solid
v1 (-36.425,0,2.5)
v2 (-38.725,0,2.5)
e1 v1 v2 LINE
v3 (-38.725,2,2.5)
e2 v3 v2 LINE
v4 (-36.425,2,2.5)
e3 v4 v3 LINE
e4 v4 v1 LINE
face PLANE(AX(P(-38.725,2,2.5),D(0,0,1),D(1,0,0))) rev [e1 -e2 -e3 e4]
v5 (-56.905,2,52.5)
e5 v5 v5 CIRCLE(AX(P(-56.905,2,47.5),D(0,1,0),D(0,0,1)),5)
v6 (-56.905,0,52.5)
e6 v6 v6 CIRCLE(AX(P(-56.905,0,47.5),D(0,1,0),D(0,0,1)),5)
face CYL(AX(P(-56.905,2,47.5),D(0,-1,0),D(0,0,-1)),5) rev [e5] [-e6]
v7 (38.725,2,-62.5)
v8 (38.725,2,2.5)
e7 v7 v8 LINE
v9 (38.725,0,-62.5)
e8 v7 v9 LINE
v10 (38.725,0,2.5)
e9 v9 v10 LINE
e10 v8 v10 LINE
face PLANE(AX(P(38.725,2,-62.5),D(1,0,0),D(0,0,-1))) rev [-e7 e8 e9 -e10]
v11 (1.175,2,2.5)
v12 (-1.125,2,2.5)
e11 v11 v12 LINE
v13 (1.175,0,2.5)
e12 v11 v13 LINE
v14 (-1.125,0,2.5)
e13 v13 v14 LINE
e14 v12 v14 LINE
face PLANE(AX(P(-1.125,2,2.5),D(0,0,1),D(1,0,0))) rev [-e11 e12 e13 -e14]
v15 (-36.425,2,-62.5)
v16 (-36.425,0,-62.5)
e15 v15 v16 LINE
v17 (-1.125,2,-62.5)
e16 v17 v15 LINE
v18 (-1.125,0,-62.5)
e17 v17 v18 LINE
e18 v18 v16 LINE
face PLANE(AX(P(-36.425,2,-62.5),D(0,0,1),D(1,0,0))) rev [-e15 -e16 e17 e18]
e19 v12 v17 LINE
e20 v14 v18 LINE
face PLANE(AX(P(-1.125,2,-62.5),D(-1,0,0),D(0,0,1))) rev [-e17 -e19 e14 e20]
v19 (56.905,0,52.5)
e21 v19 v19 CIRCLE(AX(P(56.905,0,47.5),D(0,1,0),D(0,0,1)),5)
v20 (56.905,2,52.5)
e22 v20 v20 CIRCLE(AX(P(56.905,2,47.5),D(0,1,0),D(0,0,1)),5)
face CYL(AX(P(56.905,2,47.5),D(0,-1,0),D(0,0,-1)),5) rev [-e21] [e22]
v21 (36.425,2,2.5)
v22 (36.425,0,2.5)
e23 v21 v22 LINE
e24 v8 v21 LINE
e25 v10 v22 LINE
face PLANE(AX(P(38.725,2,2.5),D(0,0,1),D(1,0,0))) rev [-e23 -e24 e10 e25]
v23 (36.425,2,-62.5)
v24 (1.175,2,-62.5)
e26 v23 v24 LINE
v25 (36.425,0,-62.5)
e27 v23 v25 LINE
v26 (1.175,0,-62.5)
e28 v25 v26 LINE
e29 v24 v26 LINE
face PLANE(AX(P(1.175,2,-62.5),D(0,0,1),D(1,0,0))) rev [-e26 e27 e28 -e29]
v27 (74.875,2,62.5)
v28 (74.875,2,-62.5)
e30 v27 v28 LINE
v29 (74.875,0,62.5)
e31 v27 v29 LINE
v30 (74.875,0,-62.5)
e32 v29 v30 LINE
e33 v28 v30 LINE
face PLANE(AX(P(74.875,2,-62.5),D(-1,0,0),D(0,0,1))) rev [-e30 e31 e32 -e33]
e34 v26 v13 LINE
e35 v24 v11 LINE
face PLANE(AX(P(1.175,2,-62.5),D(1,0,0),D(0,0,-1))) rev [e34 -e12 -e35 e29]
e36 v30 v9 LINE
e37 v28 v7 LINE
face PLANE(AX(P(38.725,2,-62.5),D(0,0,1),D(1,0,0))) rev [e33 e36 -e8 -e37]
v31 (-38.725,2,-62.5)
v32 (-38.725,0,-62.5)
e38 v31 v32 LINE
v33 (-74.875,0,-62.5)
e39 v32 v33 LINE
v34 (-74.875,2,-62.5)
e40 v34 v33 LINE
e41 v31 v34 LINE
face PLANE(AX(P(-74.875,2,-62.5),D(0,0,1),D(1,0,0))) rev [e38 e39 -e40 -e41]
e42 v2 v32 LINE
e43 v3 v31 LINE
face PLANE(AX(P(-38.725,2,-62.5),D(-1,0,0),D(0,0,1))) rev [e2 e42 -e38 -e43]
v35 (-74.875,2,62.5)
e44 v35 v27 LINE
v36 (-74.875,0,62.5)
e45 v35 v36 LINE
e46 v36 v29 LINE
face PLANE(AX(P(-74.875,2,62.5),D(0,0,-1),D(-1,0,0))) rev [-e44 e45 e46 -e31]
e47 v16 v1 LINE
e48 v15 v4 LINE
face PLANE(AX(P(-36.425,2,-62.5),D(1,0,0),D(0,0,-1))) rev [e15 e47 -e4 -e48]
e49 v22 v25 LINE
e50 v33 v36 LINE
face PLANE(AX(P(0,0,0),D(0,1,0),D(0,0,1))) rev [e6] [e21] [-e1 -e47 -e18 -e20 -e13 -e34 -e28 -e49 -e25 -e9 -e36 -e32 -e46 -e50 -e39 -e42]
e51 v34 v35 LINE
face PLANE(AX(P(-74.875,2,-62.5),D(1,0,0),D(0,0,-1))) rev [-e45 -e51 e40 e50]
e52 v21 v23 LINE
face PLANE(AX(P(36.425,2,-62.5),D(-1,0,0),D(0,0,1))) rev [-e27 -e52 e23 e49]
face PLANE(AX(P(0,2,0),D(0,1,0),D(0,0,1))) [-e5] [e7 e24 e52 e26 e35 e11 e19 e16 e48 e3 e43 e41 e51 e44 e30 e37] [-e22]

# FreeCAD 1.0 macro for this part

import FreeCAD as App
import Part
import Sketcher

V = App.Vector

doc = App.newDocument("Part")
body = doc.addObject("PartDesign::Body", "Body")

# Sketch on XZ plane
sketch1 = body.newObject("Sketcher::SketchObject", "Sketch")
sketch1.AttachmentSupport = (doc.getObject("XZ_Plane"), [""])
sketch1.MapMode = "FlatFace"
sketch1.addGeometry([
    Part.LineSegment(V(36.4, -62.5, 0), V(1.2, -62.5, 0)),  # 0
    Part.LineSegment(V(1.2, -62.5, 0), V(1.2, 2.5, 0)),  # 1
    Part.LineSegment(V(1.2, 2.5, 0), V(-1.1, 2.5, 0)),  # 2
    Part.LineSegment(V(-1.1, 2.5, 0), V(-1.1, -62.5, 0)),  # 3
    Part.LineSegment(V(-1.1, -62.5, 0), V(-36.4, -62.5, 0)),  # 4
    Part.LineSegment(V(-36.4, -62.5, 0), V(-36.4, 2.5, 0)),  # 5
    Part.LineSegment(V(-36.4, 2.5, 0), V(-38.7, 2.5, 0)),  # 6
    Part.LineSegment(V(-38.7, 2.5, 0), V(-38.7, -62.5, 0)),  # 7
    Part.LineSegment(V(-38.7, -62.5, 0), V(-74.9, -62.5, 0)),  # 8
    Part.LineSegment(V(-74.9, -62.5, 0), V(-74.9, 62.5, 0)),  # 9
    Part.LineSegment(V(-74.9, 62.5, 0), V(74.9, 62.5, 0)),  # 10
    Part.LineSegment(V(74.9, 62.5, 0), V(74.9, -62.5, 0)),  # 11
    Part.LineSegment(V(74.9, -62.5, 0), V(38.7, -62.5, 0)),  # 12
    Part.LineSegment(V(38.7, -62.5, 0), V(38.7, 2.5, 0)),  # 13
    Part.LineSegment(V(38.7, 2.5, 0), V(36.4, 2.5, 0)),  # 14
    Part.LineSegment(V(36.4, 2.5, 0), V(36.4, -62.5, 0)),  # 15
    Part.Circle(V(56.9, 47.5, 0), V(0, 0, 1), 5),  # 16
    Part.Circle(V(-56.9, 47.5, 0), V(0, 0, 1), 5),  # 17
], False)
sketch1.addConstraint([
    Sketcher.Constraint("Coincident", 0, 2, 1, 1),
    Sketcher.Constraint("Coincident", 1, 2, 2, 1),
    Sketcher.Constraint("Coincident", 2, 2, 3, 1),
    Sketcher.Constraint("Coincident", 3, 2, 4, 1),
    Sketcher.Constraint("Coincident", 4, 2, 5, 1),
    Sketcher.Constraint("Coincident", 5, 2, 6, 1),
    Sketcher.Constraint("Coincident", 6, 2, 7, 1),
    Sketcher.Constraint("Coincident", 7, 2, 8, 1),
    Sketcher.Constraint("Coincident", 8, 2, 9, 1),
    Sketcher.Constraint("Coincident", 9, 2, 10, 1),
    Sketcher.Constraint("Coincident", 10, 2, 11, 1),
    Sketcher.Constraint("Coincident", 11, 2, 12, 1),
    Sketcher.Constraint("Coincident", 12, 2, 13, 1),
    Sketcher.Constraint("Coincident", 13, 2, 14, 1),
    Sketcher.Constraint("Coincident", 14, 2, 15, 1),
    Sketcher.Constraint("Coincident", 15, 2, 0, 1),
    Sketcher.Constraint("Horizontal", 0),
    Sketcher.Constraint("Vertical", 1),
    Sketcher.Constraint("Horizontal", 2),
    Sketcher.Constraint("Vertical", 3),
    Sketcher.Constraint("Horizontal", 4),
    Sketcher.Constraint("Vertical", 5),
    Sketcher.Constraint("Horizontal", 6),
    Sketcher.Constraint("Vertical", 7),
    Sketcher.Constraint("Horizontal", 8),
    Sketcher.Constraint("Vertical", 9),
    Sketcher.Constraint("Horizontal", 10),
    Sketcher.Constraint("Vertical", 11),
    Sketcher.Constraint("Horizontal", 12),
    Sketcher.Constraint("Vertical", 13),
    Sketcher.Constraint("Horizontal", 14),
    Sketcher.Constraint("Vertical", 15),
    Sketcher.Constraint("Equal", 16, 17),
    Sketcher.Constraint("Symmetric", 8, 2, 10, 2, -1, 1),
    Sketcher.Constraint("Symmetric", 16, 3, 17, 3, -2),
    Sketcher.Constraint("Symmetric", 7, 2, 12, 2, -2),
    Sketcher.Constraint("Symmetric", 5, 2, 14, 2, -2),
    Sketcher.Constraint("Horizontal", 0, 2, 3, 2),
    Sketcher.Constraint("Horizontal", 2, 2, 5, 2),
    Sketcher.Constraint("Horizontal", 4, 2, 7, 2),
    Sketcher.Constraint("Equal", 2, 6),
    Sketcher.Constraint("Diameter", 16, 10.0),
    Sketcher.Constraint("DistanceY", 1, 1, 1, 2, 65.0),
    Sketcher.Constraint("DistanceY", 9, 1, 9, 2, 125.0),
    Sketcher.Constraint("DistanceX", 2, 2, 2, 1, 2.3),
    Sketcher.Constraint("DistanceX", 4, 2, 4, 1, 35.3),
    Sketcher.Constraint("DistanceY", 0, 2, 16, 3, 110.0),
    Sketcher.Constraint("DistanceX", 2, 2, 10, 2, 76.0),
    Sketcher.Constraint("DistanceX", 0, 2, 0, 1, 35.25),
    Sketcher.Constraint("DistanceX", 17, 3, 16, 3, 113.81),
])
pad1 = body.newObject("PartDesign::Pad", "Pad")
pad1.Profile = sketch1
pad1.Length = 2
pad1.Reversed = True

doc.recompute()
